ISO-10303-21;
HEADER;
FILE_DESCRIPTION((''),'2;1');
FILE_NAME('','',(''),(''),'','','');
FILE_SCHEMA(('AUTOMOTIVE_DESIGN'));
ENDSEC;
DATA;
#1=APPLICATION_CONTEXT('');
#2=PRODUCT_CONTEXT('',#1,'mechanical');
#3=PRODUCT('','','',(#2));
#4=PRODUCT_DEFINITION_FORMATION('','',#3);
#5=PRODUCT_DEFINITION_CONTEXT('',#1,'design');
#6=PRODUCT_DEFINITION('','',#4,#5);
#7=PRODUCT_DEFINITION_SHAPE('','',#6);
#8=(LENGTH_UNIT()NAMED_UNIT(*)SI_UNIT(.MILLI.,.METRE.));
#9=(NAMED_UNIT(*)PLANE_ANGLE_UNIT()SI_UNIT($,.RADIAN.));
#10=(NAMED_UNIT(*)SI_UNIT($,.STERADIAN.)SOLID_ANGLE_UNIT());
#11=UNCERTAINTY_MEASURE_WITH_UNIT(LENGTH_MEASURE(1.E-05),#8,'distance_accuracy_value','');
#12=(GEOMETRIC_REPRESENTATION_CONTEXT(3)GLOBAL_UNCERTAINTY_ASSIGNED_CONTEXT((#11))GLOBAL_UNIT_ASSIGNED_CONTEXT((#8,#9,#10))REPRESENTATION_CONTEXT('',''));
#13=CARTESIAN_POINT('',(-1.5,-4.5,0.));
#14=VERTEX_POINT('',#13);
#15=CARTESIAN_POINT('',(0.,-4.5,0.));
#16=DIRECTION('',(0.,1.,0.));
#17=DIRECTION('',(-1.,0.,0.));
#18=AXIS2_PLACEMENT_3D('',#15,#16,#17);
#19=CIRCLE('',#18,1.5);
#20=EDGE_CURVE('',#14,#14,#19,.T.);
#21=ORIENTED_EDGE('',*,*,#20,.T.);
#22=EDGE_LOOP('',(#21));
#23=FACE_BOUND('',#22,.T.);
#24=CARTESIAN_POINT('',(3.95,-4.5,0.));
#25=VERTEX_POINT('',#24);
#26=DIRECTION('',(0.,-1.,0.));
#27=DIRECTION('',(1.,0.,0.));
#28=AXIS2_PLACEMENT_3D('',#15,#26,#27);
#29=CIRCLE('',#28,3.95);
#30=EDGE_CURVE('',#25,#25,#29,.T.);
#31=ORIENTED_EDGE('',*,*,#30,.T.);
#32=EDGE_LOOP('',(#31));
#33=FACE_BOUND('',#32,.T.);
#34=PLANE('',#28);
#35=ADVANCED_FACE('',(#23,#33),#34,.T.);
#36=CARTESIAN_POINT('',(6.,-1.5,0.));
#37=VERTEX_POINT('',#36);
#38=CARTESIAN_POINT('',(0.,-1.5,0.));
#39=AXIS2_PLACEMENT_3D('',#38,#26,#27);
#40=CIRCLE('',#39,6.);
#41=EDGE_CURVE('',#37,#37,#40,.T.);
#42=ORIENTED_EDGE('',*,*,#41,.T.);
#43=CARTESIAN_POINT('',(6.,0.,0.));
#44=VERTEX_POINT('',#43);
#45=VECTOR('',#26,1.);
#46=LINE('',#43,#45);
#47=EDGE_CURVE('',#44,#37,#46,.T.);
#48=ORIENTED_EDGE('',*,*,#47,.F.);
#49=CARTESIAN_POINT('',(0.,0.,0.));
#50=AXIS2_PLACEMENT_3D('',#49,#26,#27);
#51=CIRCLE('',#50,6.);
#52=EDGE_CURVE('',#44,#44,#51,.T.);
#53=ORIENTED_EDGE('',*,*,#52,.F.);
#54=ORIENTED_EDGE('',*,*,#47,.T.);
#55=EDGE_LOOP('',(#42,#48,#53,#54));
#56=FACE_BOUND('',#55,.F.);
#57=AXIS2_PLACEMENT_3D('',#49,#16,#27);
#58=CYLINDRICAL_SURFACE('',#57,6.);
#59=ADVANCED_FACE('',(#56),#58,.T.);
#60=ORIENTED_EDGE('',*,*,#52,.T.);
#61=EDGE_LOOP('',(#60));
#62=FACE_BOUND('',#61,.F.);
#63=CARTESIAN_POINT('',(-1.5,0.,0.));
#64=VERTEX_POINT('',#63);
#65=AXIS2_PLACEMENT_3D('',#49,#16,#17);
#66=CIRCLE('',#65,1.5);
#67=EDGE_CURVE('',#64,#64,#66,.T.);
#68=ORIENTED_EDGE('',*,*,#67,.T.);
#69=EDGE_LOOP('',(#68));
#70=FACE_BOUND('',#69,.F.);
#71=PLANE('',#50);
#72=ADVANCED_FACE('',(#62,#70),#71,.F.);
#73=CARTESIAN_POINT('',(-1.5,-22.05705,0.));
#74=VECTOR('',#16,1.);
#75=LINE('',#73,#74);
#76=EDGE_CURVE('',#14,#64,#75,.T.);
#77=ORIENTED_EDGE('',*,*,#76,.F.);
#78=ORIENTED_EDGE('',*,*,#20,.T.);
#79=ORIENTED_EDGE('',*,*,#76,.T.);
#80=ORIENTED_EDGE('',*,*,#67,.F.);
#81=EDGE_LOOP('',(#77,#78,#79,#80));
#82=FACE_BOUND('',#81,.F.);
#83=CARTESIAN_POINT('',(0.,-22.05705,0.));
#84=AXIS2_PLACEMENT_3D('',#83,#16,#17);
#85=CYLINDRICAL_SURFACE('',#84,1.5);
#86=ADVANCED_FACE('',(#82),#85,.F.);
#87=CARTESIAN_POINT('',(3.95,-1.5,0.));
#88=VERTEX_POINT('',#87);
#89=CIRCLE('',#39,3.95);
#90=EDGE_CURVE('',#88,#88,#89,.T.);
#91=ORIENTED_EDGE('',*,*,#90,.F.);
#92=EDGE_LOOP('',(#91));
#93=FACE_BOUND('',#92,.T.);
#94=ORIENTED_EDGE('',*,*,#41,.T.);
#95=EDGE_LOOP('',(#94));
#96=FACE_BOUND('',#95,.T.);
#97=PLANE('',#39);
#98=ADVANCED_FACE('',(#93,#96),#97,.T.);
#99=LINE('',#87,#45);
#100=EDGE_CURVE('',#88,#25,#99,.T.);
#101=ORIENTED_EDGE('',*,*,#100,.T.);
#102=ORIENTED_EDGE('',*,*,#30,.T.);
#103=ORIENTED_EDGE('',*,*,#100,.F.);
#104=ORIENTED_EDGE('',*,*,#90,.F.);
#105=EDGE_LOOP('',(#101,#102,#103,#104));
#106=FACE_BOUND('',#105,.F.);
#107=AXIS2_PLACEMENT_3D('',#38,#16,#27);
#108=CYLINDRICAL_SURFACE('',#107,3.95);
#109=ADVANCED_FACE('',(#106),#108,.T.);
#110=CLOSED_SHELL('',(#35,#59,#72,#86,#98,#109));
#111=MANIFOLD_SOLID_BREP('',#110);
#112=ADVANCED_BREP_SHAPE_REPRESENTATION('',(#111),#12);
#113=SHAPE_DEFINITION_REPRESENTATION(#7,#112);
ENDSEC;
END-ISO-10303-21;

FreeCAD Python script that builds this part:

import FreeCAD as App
import Part
import Sketcher
from FreeCAD import Vector
Q = App.Units.Quantity

doc = App.newDocument("Part")
body = doc.addObject("PartDesign::Body", "Body")

# Sketch on XZ plane
sketch1 = body.newObject("Sketcher::SketchObject", "Sketch")
sketch1.AttachmentSupport = (doc.getObject("XZ_Plane"), [""])
sketch1.MapMode = "FlatFace"
sketch1.addGeometry(Part.Circle(Vector(0, 0, 0), Vector(0, 0, 1), 6), False)
sketch1.addConstraint([
    Sketcher.Constraint("Coincident", 0, 3, -1, 1),
    Sketcher.Constraint("Diameter", 0, Q("12 mm")),
])
pad1 = body.newObject("PartDesign::Pad", "Pad")
pad1.Profile = sketch1
pad1.Length = 1.5

# Sketch on XZ plane
sketch2 = body.newObject("Sketcher::SketchObject", "Sketch001")
sketch2.AttachmentSupport = (doc.getObject("XZ_Plane"), [""])
sketch2.MapMode = "FlatFace"
sketch2.AttachmentOffset = App.Placement(Vector(0, 0, 1.5), App.Rotation())
sketch2.addGeometry(Part.Circle(Vector(0, 0, 0), Vector(0, 0, 1), 4), False)
sketch2.addConstraint([
    Sketcher.Constraint("Coincident", 0, 3, -1, 1),
    Sketcher.Constraint("Diameter", 0, Q("7.9 mm")),
])
pad2 = body.newObject("PartDesign::Pad", "Pad001")
pad2.Profile = sketch2
pad2.Length = 3

# Sketch on XZ plane
sketch3 = body.newObject("Sketcher::SketchObject", "Sketch002")
sketch3.AttachmentSupport = (doc.getObject("XZ_Plane"), [""])
sketch3.MapMode = "FlatFace"
sketch3.AttachmentOffset = App.Placement(Vector(0, 0, 4.5), App.Rotation())
sketch3.addGeometry(Part.Circle(Vector(0, 0, 0), Vector(0, 0, 1), 1.5), False)
sketch3.addConstraint([
    Sketcher.Constraint("Coincident", 0, 3, -1, 1),
    Sketcher.Constraint("Diameter", 0, Q("3 mm")),
])
doc.recompute()
hole = body.newObject("PartDesign::Hole", "Hole")
hole.Profile = sketch3
hole.ThreadType = "None"
hole.Diameter = 3
hole.DepthType = "ThroughAll"

doc.recompute()
